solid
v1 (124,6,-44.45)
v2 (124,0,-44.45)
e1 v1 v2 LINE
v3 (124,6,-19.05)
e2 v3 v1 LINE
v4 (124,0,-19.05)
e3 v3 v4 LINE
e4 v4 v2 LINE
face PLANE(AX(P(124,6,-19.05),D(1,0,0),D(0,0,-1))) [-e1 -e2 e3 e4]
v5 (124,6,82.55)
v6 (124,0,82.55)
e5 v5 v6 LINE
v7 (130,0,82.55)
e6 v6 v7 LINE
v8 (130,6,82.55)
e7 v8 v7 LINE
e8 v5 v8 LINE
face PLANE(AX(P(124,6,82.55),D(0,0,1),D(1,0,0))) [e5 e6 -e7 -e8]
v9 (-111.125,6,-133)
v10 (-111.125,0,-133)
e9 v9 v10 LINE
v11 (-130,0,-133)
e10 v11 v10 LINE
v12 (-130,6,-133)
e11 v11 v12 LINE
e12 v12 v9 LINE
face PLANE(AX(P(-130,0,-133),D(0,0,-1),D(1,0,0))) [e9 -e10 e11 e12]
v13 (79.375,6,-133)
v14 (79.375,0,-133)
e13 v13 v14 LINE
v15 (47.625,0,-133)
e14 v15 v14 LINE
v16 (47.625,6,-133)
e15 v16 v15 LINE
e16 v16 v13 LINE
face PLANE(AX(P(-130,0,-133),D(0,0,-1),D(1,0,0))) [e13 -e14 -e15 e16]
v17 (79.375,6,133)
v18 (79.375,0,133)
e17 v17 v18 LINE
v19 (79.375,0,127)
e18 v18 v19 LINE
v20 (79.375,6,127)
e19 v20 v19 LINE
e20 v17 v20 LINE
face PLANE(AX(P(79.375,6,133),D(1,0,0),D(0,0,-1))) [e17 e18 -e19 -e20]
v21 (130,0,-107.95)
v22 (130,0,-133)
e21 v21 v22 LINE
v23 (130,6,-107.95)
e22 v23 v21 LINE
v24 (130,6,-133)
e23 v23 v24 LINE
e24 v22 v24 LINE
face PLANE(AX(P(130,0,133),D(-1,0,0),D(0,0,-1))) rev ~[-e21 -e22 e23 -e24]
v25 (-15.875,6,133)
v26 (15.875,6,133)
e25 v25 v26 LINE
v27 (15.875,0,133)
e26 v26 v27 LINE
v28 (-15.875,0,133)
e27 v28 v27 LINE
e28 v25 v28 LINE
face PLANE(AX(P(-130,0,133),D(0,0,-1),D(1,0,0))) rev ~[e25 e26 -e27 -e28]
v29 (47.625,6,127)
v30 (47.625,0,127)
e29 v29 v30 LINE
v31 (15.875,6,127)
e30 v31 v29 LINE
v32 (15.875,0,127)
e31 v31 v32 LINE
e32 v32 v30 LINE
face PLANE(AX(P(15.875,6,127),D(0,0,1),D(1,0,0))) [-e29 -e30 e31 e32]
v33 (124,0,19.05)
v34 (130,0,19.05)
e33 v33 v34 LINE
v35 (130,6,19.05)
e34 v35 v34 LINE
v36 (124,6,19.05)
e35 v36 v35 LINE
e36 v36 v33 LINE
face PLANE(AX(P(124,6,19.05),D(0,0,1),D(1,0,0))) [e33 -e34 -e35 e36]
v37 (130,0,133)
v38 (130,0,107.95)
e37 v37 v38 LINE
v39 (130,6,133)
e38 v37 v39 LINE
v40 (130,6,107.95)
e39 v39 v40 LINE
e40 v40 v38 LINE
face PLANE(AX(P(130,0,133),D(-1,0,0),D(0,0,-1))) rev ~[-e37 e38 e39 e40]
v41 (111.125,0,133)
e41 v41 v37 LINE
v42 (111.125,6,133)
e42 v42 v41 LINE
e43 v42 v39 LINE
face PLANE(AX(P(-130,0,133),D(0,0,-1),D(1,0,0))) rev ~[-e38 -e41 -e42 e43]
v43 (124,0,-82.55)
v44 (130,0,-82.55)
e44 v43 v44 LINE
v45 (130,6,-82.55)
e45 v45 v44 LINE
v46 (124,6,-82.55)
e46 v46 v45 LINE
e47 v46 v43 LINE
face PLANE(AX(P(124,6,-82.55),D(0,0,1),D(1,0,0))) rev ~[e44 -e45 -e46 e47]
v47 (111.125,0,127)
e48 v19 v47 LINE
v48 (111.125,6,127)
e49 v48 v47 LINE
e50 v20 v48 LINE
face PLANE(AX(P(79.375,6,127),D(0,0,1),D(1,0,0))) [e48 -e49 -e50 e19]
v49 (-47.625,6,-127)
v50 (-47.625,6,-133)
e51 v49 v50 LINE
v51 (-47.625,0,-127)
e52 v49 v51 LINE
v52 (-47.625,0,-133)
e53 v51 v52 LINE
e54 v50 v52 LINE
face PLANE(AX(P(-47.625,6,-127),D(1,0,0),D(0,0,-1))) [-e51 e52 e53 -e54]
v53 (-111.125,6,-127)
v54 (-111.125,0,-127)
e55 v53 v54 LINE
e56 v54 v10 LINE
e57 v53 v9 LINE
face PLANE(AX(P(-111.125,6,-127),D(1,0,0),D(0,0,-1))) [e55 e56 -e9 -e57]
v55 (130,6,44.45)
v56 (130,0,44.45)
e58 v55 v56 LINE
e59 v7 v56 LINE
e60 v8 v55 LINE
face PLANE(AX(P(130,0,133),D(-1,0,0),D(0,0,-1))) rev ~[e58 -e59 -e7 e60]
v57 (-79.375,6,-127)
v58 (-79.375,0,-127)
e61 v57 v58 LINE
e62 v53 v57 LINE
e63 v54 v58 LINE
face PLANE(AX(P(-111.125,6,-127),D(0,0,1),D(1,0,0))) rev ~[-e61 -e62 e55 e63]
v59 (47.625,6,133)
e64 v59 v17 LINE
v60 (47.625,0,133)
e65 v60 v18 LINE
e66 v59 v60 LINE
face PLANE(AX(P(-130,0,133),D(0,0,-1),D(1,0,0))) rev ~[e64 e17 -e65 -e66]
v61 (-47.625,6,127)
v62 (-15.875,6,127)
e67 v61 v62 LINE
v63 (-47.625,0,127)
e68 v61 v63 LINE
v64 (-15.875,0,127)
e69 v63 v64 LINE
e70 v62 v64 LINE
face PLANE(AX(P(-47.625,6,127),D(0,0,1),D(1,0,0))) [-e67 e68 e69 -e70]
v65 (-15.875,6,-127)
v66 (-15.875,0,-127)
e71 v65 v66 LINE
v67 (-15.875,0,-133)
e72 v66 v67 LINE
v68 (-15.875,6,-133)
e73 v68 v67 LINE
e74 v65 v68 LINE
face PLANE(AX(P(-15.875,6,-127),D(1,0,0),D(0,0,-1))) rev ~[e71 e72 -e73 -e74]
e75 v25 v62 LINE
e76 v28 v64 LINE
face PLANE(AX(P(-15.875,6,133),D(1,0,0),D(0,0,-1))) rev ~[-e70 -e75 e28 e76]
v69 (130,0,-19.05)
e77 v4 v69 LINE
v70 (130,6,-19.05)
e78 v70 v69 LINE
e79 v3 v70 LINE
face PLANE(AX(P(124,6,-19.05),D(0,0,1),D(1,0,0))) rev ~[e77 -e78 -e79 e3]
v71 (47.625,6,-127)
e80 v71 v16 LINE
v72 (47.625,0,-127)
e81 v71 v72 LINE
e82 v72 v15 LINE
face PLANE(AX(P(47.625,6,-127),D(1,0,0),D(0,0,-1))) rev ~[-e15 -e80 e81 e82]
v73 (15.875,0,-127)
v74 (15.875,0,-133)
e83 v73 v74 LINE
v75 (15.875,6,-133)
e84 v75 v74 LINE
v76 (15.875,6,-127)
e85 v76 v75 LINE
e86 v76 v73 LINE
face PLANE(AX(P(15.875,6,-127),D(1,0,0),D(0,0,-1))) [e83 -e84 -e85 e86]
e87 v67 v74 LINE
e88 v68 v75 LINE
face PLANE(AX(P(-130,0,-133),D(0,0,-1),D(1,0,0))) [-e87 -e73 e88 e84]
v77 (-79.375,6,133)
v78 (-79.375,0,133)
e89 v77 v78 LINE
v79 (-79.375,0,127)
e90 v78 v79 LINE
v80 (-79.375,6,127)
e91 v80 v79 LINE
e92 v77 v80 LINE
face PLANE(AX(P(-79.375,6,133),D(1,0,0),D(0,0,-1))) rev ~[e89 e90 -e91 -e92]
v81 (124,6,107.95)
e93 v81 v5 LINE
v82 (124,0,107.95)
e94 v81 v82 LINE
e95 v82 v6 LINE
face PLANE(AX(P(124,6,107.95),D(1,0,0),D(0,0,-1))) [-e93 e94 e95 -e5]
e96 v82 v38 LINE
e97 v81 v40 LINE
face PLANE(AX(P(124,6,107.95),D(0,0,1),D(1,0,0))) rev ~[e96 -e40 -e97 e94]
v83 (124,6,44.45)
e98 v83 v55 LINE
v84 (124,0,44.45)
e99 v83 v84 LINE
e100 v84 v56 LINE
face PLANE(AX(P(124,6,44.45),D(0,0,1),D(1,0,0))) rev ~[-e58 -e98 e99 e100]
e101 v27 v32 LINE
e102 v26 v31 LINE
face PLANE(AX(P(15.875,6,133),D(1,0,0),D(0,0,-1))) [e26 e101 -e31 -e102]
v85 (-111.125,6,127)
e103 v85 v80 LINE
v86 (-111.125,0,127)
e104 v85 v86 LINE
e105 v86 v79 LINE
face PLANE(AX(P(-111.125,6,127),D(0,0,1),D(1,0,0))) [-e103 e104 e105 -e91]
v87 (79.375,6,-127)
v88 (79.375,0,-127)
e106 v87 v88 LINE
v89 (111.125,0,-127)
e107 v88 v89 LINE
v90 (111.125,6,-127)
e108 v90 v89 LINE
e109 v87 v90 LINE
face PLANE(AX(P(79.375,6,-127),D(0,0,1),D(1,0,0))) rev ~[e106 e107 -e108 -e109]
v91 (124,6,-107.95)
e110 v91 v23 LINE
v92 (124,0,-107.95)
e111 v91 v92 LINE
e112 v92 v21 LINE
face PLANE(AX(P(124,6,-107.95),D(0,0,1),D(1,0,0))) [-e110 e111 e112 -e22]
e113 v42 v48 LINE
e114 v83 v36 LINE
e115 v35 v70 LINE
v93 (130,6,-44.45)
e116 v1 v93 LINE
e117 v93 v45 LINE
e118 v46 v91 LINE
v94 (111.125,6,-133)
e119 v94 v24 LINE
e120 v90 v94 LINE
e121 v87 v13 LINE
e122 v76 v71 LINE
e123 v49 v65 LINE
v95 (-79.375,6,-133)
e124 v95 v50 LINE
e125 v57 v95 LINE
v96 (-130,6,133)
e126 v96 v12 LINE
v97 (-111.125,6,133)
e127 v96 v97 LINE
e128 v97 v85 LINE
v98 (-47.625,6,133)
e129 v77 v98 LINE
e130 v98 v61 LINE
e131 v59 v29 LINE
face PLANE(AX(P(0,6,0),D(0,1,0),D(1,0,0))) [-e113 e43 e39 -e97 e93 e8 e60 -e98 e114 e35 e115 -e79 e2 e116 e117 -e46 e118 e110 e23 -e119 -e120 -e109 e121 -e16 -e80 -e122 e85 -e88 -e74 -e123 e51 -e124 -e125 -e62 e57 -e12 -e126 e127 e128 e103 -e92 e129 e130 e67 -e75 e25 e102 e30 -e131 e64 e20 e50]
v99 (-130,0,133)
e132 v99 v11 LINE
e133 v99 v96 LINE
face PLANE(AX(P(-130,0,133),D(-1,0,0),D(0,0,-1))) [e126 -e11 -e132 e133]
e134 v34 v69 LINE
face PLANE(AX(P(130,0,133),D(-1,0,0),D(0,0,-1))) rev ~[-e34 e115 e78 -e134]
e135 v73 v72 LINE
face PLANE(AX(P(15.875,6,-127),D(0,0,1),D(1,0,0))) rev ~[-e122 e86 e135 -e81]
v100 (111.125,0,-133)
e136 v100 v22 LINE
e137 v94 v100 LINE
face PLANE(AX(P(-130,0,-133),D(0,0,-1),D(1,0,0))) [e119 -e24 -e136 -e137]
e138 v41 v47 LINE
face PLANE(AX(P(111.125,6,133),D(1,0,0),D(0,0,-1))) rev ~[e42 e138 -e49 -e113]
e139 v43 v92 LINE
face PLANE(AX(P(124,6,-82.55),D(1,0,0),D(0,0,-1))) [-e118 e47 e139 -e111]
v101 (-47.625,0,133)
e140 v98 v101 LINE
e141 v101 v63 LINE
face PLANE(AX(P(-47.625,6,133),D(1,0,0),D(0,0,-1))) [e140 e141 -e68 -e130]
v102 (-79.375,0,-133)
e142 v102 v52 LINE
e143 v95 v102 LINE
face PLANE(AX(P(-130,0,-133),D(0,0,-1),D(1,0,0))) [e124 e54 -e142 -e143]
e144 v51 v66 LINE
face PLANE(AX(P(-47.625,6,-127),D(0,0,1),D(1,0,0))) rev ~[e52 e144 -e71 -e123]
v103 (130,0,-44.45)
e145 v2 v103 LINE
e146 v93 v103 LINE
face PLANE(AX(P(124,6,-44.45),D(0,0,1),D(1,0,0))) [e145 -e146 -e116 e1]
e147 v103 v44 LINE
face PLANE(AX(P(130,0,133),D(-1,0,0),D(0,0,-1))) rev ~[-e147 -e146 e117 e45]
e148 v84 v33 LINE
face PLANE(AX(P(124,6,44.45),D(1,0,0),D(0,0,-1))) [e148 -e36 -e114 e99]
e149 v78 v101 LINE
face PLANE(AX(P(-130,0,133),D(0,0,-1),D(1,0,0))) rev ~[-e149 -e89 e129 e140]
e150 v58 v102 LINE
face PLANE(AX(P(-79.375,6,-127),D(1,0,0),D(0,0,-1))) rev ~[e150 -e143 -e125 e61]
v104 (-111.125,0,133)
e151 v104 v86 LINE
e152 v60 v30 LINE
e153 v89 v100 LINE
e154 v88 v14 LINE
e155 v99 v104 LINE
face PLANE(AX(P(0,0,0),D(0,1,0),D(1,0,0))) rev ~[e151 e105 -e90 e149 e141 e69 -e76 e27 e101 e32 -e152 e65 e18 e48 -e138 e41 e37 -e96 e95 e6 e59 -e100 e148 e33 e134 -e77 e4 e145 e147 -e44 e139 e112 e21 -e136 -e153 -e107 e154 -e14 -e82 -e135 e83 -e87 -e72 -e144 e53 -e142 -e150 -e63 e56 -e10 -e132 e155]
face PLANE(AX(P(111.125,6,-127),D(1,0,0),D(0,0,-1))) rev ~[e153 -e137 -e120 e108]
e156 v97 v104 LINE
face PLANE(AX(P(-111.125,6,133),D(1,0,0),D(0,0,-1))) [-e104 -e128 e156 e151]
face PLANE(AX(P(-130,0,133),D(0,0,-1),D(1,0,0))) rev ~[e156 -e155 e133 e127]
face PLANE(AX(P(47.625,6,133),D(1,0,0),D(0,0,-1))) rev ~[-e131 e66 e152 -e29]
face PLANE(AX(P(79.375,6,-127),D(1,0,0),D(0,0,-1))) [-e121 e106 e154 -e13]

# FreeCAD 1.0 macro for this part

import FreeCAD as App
import Part
import Sketcher
from FreeCAD import Vector


def add_polygon(sketch, points):
    """Adds a closed chain of lines whose ends are joined by coincident constraints."""
    first, n = sketch.GeometryCount, len(points)
    for a, b in zip(points, points[1:] + points[:1]):
        sketch.addGeometry(Part.LineSegment(App.Vector(*a, 0), App.Vector(*b, 0)), False)
    for i in range(n):
        sketch.addConstraint(Sketcher.Constraint("Coincident", first + i, 2, first + (i + 1) % n, 1))

doc = App.newDocument("Part")
body = doc.addObject("PartDesign::Body", "Body")

# Sketch on XZ plane
sketch1 = doc.addObject("Sketcher::SketchObject", "Sketch")
body.addObject(sketch1)
sketch1.AttachmentSupport = (doc.XZ_Plane, [""])
sketch1.MapMode = "FlatFace"
add_polygon(sketch1, [(-130, -133), (-130, 133), (130, 133), (130, -133)])  # lines 0-3
sketch1.addConstraint(Sketcher.Constraint("Vertical", 0))
sketch1.addConstraint(Sketcher.Constraint("Horizontal", 1))
sketch1.addConstraint(Sketcher.Constraint("Vertical", 2))
sketch1.addConstraint(Sketcher.Constraint("Horizontal", 3))
sketch1.addConstraint(Sketcher.Constraint("Symmetric", 0, 2, 2, 2, -1, 1))
sketch1.addConstraint(Sketcher.Constraint("DistanceX", 1, 1, 1, 2, 260.0))
sketch1.addConstraint(Sketcher.Constraint("DistanceY", 0, 1, 0, 2, 266.0))
pad1 = doc.addObject("PartDesign::Pad", "Pad")
body.addObject(pad1)
pad1.Profile = sketch1
pad1.Length = 6
pad1.Reversed = True

# Sketch on XZ plane
sketch2 = doc.addObject("Sketcher::SketchObject", "Sketch001")
body.addObject(sketch2)
sketch2.AttachmentSupport = (doc.XZ_Plane, [""])
sketch2.MapMode = "FlatFace"
sketch2.AttachmentOffset = App.Placement(Vector(0, 0, -6), App.Rotation())
add_polygon(sketch2, [(79.375, -133), (79.375, -127), (111.125, -127), (111.125, -133)])  # lines 0-3
add_polygon(sketch2, [(-47.625, -133), (-47.625, -127), (-15.875, -127), (-15.875, -133)])  # lines 4-7
add_polygon(sketch2, [(-111.125, -133), (-111.125, -127), (-79.375, -127), (-79.375, -133)])  # lines 8-11
add_polygon(sketch2, [(15.875, -133), (15.875, -127), (47.625, -127), (47.625, -133)])  # lines 12-15
add_polygon(sketch2, [(15.875, 127), (15.875, 133), (47.625, 133), (47.625, 127)])  # lines 16-19
add_polygon(sketch2, [(79.375, 127), (79.375, 133), (111.125, 133), (111.125, 127)])  # lines 20-23
add_polygon(sketch2, [(-111.125, 127), (-111.125, 133), (-79.375, 133), (-79.375, 127)])  # lines 24-27
add_polygon(sketch2, [(-47.625, 127), (-47.625, 133), (-15.875, 133), (-15.875, 127)])  # lines 28-31
add_polygon(sketch2, [(124, 82.55), (124, 107.95), (130, 107.95), (130, 82.55)])  # lines 32-35
add_polygon(sketch2, [(124, -44.45), (124, -19.05), (130, -19.05), (130, -44.45)])  # lines 36-39
add_polygon(sketch2, [(124, -107.95), (124, -82.55), (130, -82.55), (130, -107.95)])  # lines 40-43
add_polygon(sketch2, [(124, 19.05), (124, 44.45), (130, 44.45), (130, 19.05)])  # lines 44-47
sketch2.addConstraint(Sketcher.Constraint("Vertical", 0))
sketch2.addConstraint(Sketcher.Constraint("Horizontal", 1))
sketch2.addConstraint(Sketcher.Constraint("Vertical", 2))
sketch2.addConstraint(Sketcher.Constraint("Horizontal", 3))
sketch2.addConstraint(Sketcher.Constraint("Vertical", 4))
sketch2.addConstraint(Sketcher.Constraint("Horizontal", 5))
sketch2.addConstraint(Sketcher.Constraint("Vertical", 6))
sketch2.addConstraint(Sketcher.Constraint("Horizontal", 7))
sketch2.addConstraint(Sketcher.Constraint("Vertical", 8))
sketch2.addConstraint(Sketcher.Constraint("Horizontal", 9))
sketch2.addConstraint(Sketcher.Constraint("Vertical", 10))
sketch2.addConstraint(Sketcher.Constraint("Horizontal", 11))
sketch2.addConstraint(Sketcher.Constraint("Vertical", 12))
sketch2.addConstraint(Sketcher.Constraint("Horizontal", 13))
sketch2.addConstraint(Sketcher.Constraint("Vertical", 14))
sketch2.addConstraint(Sketcher.Constraint("Horizontal", 15))
sketch2.addConstraint(Sketcher.Constraint("Vertical", 16))
sketch2.addConstraint(Sketcher.Constraint("Horizontal", 17))
sketch2.addConstraint(Sketcher.Constraint("Vertical", 18))
sketch2.addConstraint(Sketcher.Constraint("Horizontal", 19))
sketch2.addConstraint(Sketcher.Constraint("Vertical", 20))
sketch2.addConstraint(Sketcher.Constraint("Horizontal", 21))
sketch2.addConstraint(Sketcher.Constraint("Vertical", 22))
sketch2.addConstraint(Sketcher.Constraint("Horizontal", 23))
sketch2.addConstraint(Sketcher.Constraint("Vertical", 24))
sketch2.addConstraint(Sketcher.Constraint("Horizontal", 25))
sketch2.addConstraint(Sketcher.Constraint("Vertical", 26))
sketch2.addConstraint(Sketcher.Constraint("Horizontal", 27))
sketch2.addConstraint(Sketcher.Constraint("Vertical", 28))
sketch2.addConstraint(Sketcher.Constraint("Horizontal", 29))
sketch2.addConstraint(Sketcher.Constraint("Vertical", 30))
sketch2.addConstraint(Sketcher.Constraint("Horizontal", 31))
sketch2.addConstraint(Sketcher.Constraint("Vertical", 32))
sketch2.addConstraint(Sketcher.Constraint("Horizontal", 33))
sketch2.addConstraint(Sketcher.Constraint("Vertical", 34))
sketch2.addConstraint(Sketcher.Constraint("Horizontal", 35))
sketch2.addConstraint(Sketcher.Constraint("Vertical", 36))
sketch2.addConstraint(Sketcher.Constraint("Horizontal", 37))
sketch2.addConstraint(Sketcher.Constraint("Vertical", 38))
sketch2.addConstraint(Sketcher.Constraint("Horizontal", 39))
sketch2.addConstraint(Sketcher.Constraint("Vertical", 40))
sketch2.addConstraint(Sketcher.Constraint("Horizontal", 41))
sketch2.addConstraint(Sketcher.Constraint("Vertical", 42))
sketch2.addConstraint(Sketcher.Constraint("Horizontal", 43))
sketch2.addConstraint(Sketcher.Constraint("Vertical", 44))
sketch2.addConstraint(Sketcher.Constraint("Horizontal", 45))
sketch2.addConstraint(Sketcher.Constraint("Vertical", 46))
sketch2.addConstraint(Sketcher.Constraint("Horizontal", 47))
sketch2.addConstraint(Sketcher.Constraint("Symmetric", 6, 2, 16, 2, -1, 1))
sketch2.addConstraint(Sketcher.Constraint("Symmetric", 4, 2, 18, 2, -1, 1))
sketch2.addConstraint(Sketcher.Constraint("Symmetric", 10, 2, 20, 2, -1, 1))
sketch2.addConstraint(Sketcher.Constraint("Symmetric", 8, 2, 22, 2, -1, 1))
sketch2.addConstraint(Sketcher.Constraint("Symmetric", 2, 2, 24, 2, -1, 1))
sketch2.addConstraint(Sketcher.Constraint("Symmetric", 0, 2, 26, 2, -1, 1))
sketch2.addConstraint(Sketcher.Constraint("Symmetric", 14, 2, 28, 2, -1, 1))
sketch2.addConstraint(Sketcher.Constraint("Symmetric", 12, 2, 30, 2, -1, 1))
sketch2.addConstraint(Sketcher.Constraint("Symmetric", 1, 2, 8, 2, -2))
sketch2.addConstraint(Sketcher.Constraint("Symmetric", 3, 2, 10, 2, -2))
sketch2.addConstraint(Sketcher.Constraint("Symmetric", 5, 2, 12, 2, -2))
sketch2.addConstraint(Sketcher.Constraint("Symmetric", 7, 2, 14, 2, -2))
sketch2.addConstraint(Sketcher.Constraint("Symmetric", 35, 2, 40, 2, -1))
sketch2.addConstraint(Sketcher.Constraint("Symmetric", 33, 2, 42, 2, -1))
sketch2.addConstraint(Sketcher.Constraint("Symmetric", 39, 2, 44, 2, -1))
sketch2.addConstraint(Sketcher.Constraint("Symmetric", 37, 2, 46, 2, -1))
sketch2.addConstraint(Sketcher.Constraint("Horizontal", 1, 2, 4, 2))
sketch2.addConstraint(Sketcher.Constraint("Horizontal", 3, 2, 6, 2))
sketch2.addConstraint(Sketcher.Constraint("Vertical", 35, 2, 36, 2))
sketch2.addConstraint(Sketcher.Constraint("Vertical", 34, 2, 37, 2))
sketch2.addConstraint(Sketcher.Constraint("Equal", 3, 5))
sketch2.addConstraint(Sketcher.Constraint("Equal", 47, 0))
sketch2.addConstraint(Sketcher.Constraint("Equal", 34, 36))
sketch2.addConstraint(Sketcher.Constraint("DistanceX", 33, 1, 33, 2, 6.0))
sketch2.addConstraint(Sketcher.Constraint("DistanceY", 32, 1, 32, 2, 25.4))
sketch2.addConstraint(Sketcher.Constraint("DistanceY", 0, 2, -1, 1, 127.0))
sketch2.addConstraint(Sketcher.Constraint("DistanceX", -1, 1, 32, 2, 124.0))
sketch2.addConstraint(Sketcher.Constraint("DistanceX", 4, 2, 0, 2, 127.0))
sketch2.addConstraint(Sketcher.Constraint("DistanceX", 1, 1, 1, 2, 31.75))
sketch2.addConstraint(Sketcher.Constraint("DistanceX", 8, 2, 4, 2, 63.5))
sketch2.addConstraint(Sketcher.Constraint("DistanceY", 36, 2, 35, 2, 101.6))
sketch2.addConstraint(Sketcher.Constraint("DistanceY", 40, 2, 39, 2, 38.1))
pocket1 = doc.addObject("PartDesign::Pocket", "Pocket")
body.addObject(pocket1)
pocket1.Profile = sketch2
pocket1.Length = 6
pocket1.Reversed = True

doc.recompute()
